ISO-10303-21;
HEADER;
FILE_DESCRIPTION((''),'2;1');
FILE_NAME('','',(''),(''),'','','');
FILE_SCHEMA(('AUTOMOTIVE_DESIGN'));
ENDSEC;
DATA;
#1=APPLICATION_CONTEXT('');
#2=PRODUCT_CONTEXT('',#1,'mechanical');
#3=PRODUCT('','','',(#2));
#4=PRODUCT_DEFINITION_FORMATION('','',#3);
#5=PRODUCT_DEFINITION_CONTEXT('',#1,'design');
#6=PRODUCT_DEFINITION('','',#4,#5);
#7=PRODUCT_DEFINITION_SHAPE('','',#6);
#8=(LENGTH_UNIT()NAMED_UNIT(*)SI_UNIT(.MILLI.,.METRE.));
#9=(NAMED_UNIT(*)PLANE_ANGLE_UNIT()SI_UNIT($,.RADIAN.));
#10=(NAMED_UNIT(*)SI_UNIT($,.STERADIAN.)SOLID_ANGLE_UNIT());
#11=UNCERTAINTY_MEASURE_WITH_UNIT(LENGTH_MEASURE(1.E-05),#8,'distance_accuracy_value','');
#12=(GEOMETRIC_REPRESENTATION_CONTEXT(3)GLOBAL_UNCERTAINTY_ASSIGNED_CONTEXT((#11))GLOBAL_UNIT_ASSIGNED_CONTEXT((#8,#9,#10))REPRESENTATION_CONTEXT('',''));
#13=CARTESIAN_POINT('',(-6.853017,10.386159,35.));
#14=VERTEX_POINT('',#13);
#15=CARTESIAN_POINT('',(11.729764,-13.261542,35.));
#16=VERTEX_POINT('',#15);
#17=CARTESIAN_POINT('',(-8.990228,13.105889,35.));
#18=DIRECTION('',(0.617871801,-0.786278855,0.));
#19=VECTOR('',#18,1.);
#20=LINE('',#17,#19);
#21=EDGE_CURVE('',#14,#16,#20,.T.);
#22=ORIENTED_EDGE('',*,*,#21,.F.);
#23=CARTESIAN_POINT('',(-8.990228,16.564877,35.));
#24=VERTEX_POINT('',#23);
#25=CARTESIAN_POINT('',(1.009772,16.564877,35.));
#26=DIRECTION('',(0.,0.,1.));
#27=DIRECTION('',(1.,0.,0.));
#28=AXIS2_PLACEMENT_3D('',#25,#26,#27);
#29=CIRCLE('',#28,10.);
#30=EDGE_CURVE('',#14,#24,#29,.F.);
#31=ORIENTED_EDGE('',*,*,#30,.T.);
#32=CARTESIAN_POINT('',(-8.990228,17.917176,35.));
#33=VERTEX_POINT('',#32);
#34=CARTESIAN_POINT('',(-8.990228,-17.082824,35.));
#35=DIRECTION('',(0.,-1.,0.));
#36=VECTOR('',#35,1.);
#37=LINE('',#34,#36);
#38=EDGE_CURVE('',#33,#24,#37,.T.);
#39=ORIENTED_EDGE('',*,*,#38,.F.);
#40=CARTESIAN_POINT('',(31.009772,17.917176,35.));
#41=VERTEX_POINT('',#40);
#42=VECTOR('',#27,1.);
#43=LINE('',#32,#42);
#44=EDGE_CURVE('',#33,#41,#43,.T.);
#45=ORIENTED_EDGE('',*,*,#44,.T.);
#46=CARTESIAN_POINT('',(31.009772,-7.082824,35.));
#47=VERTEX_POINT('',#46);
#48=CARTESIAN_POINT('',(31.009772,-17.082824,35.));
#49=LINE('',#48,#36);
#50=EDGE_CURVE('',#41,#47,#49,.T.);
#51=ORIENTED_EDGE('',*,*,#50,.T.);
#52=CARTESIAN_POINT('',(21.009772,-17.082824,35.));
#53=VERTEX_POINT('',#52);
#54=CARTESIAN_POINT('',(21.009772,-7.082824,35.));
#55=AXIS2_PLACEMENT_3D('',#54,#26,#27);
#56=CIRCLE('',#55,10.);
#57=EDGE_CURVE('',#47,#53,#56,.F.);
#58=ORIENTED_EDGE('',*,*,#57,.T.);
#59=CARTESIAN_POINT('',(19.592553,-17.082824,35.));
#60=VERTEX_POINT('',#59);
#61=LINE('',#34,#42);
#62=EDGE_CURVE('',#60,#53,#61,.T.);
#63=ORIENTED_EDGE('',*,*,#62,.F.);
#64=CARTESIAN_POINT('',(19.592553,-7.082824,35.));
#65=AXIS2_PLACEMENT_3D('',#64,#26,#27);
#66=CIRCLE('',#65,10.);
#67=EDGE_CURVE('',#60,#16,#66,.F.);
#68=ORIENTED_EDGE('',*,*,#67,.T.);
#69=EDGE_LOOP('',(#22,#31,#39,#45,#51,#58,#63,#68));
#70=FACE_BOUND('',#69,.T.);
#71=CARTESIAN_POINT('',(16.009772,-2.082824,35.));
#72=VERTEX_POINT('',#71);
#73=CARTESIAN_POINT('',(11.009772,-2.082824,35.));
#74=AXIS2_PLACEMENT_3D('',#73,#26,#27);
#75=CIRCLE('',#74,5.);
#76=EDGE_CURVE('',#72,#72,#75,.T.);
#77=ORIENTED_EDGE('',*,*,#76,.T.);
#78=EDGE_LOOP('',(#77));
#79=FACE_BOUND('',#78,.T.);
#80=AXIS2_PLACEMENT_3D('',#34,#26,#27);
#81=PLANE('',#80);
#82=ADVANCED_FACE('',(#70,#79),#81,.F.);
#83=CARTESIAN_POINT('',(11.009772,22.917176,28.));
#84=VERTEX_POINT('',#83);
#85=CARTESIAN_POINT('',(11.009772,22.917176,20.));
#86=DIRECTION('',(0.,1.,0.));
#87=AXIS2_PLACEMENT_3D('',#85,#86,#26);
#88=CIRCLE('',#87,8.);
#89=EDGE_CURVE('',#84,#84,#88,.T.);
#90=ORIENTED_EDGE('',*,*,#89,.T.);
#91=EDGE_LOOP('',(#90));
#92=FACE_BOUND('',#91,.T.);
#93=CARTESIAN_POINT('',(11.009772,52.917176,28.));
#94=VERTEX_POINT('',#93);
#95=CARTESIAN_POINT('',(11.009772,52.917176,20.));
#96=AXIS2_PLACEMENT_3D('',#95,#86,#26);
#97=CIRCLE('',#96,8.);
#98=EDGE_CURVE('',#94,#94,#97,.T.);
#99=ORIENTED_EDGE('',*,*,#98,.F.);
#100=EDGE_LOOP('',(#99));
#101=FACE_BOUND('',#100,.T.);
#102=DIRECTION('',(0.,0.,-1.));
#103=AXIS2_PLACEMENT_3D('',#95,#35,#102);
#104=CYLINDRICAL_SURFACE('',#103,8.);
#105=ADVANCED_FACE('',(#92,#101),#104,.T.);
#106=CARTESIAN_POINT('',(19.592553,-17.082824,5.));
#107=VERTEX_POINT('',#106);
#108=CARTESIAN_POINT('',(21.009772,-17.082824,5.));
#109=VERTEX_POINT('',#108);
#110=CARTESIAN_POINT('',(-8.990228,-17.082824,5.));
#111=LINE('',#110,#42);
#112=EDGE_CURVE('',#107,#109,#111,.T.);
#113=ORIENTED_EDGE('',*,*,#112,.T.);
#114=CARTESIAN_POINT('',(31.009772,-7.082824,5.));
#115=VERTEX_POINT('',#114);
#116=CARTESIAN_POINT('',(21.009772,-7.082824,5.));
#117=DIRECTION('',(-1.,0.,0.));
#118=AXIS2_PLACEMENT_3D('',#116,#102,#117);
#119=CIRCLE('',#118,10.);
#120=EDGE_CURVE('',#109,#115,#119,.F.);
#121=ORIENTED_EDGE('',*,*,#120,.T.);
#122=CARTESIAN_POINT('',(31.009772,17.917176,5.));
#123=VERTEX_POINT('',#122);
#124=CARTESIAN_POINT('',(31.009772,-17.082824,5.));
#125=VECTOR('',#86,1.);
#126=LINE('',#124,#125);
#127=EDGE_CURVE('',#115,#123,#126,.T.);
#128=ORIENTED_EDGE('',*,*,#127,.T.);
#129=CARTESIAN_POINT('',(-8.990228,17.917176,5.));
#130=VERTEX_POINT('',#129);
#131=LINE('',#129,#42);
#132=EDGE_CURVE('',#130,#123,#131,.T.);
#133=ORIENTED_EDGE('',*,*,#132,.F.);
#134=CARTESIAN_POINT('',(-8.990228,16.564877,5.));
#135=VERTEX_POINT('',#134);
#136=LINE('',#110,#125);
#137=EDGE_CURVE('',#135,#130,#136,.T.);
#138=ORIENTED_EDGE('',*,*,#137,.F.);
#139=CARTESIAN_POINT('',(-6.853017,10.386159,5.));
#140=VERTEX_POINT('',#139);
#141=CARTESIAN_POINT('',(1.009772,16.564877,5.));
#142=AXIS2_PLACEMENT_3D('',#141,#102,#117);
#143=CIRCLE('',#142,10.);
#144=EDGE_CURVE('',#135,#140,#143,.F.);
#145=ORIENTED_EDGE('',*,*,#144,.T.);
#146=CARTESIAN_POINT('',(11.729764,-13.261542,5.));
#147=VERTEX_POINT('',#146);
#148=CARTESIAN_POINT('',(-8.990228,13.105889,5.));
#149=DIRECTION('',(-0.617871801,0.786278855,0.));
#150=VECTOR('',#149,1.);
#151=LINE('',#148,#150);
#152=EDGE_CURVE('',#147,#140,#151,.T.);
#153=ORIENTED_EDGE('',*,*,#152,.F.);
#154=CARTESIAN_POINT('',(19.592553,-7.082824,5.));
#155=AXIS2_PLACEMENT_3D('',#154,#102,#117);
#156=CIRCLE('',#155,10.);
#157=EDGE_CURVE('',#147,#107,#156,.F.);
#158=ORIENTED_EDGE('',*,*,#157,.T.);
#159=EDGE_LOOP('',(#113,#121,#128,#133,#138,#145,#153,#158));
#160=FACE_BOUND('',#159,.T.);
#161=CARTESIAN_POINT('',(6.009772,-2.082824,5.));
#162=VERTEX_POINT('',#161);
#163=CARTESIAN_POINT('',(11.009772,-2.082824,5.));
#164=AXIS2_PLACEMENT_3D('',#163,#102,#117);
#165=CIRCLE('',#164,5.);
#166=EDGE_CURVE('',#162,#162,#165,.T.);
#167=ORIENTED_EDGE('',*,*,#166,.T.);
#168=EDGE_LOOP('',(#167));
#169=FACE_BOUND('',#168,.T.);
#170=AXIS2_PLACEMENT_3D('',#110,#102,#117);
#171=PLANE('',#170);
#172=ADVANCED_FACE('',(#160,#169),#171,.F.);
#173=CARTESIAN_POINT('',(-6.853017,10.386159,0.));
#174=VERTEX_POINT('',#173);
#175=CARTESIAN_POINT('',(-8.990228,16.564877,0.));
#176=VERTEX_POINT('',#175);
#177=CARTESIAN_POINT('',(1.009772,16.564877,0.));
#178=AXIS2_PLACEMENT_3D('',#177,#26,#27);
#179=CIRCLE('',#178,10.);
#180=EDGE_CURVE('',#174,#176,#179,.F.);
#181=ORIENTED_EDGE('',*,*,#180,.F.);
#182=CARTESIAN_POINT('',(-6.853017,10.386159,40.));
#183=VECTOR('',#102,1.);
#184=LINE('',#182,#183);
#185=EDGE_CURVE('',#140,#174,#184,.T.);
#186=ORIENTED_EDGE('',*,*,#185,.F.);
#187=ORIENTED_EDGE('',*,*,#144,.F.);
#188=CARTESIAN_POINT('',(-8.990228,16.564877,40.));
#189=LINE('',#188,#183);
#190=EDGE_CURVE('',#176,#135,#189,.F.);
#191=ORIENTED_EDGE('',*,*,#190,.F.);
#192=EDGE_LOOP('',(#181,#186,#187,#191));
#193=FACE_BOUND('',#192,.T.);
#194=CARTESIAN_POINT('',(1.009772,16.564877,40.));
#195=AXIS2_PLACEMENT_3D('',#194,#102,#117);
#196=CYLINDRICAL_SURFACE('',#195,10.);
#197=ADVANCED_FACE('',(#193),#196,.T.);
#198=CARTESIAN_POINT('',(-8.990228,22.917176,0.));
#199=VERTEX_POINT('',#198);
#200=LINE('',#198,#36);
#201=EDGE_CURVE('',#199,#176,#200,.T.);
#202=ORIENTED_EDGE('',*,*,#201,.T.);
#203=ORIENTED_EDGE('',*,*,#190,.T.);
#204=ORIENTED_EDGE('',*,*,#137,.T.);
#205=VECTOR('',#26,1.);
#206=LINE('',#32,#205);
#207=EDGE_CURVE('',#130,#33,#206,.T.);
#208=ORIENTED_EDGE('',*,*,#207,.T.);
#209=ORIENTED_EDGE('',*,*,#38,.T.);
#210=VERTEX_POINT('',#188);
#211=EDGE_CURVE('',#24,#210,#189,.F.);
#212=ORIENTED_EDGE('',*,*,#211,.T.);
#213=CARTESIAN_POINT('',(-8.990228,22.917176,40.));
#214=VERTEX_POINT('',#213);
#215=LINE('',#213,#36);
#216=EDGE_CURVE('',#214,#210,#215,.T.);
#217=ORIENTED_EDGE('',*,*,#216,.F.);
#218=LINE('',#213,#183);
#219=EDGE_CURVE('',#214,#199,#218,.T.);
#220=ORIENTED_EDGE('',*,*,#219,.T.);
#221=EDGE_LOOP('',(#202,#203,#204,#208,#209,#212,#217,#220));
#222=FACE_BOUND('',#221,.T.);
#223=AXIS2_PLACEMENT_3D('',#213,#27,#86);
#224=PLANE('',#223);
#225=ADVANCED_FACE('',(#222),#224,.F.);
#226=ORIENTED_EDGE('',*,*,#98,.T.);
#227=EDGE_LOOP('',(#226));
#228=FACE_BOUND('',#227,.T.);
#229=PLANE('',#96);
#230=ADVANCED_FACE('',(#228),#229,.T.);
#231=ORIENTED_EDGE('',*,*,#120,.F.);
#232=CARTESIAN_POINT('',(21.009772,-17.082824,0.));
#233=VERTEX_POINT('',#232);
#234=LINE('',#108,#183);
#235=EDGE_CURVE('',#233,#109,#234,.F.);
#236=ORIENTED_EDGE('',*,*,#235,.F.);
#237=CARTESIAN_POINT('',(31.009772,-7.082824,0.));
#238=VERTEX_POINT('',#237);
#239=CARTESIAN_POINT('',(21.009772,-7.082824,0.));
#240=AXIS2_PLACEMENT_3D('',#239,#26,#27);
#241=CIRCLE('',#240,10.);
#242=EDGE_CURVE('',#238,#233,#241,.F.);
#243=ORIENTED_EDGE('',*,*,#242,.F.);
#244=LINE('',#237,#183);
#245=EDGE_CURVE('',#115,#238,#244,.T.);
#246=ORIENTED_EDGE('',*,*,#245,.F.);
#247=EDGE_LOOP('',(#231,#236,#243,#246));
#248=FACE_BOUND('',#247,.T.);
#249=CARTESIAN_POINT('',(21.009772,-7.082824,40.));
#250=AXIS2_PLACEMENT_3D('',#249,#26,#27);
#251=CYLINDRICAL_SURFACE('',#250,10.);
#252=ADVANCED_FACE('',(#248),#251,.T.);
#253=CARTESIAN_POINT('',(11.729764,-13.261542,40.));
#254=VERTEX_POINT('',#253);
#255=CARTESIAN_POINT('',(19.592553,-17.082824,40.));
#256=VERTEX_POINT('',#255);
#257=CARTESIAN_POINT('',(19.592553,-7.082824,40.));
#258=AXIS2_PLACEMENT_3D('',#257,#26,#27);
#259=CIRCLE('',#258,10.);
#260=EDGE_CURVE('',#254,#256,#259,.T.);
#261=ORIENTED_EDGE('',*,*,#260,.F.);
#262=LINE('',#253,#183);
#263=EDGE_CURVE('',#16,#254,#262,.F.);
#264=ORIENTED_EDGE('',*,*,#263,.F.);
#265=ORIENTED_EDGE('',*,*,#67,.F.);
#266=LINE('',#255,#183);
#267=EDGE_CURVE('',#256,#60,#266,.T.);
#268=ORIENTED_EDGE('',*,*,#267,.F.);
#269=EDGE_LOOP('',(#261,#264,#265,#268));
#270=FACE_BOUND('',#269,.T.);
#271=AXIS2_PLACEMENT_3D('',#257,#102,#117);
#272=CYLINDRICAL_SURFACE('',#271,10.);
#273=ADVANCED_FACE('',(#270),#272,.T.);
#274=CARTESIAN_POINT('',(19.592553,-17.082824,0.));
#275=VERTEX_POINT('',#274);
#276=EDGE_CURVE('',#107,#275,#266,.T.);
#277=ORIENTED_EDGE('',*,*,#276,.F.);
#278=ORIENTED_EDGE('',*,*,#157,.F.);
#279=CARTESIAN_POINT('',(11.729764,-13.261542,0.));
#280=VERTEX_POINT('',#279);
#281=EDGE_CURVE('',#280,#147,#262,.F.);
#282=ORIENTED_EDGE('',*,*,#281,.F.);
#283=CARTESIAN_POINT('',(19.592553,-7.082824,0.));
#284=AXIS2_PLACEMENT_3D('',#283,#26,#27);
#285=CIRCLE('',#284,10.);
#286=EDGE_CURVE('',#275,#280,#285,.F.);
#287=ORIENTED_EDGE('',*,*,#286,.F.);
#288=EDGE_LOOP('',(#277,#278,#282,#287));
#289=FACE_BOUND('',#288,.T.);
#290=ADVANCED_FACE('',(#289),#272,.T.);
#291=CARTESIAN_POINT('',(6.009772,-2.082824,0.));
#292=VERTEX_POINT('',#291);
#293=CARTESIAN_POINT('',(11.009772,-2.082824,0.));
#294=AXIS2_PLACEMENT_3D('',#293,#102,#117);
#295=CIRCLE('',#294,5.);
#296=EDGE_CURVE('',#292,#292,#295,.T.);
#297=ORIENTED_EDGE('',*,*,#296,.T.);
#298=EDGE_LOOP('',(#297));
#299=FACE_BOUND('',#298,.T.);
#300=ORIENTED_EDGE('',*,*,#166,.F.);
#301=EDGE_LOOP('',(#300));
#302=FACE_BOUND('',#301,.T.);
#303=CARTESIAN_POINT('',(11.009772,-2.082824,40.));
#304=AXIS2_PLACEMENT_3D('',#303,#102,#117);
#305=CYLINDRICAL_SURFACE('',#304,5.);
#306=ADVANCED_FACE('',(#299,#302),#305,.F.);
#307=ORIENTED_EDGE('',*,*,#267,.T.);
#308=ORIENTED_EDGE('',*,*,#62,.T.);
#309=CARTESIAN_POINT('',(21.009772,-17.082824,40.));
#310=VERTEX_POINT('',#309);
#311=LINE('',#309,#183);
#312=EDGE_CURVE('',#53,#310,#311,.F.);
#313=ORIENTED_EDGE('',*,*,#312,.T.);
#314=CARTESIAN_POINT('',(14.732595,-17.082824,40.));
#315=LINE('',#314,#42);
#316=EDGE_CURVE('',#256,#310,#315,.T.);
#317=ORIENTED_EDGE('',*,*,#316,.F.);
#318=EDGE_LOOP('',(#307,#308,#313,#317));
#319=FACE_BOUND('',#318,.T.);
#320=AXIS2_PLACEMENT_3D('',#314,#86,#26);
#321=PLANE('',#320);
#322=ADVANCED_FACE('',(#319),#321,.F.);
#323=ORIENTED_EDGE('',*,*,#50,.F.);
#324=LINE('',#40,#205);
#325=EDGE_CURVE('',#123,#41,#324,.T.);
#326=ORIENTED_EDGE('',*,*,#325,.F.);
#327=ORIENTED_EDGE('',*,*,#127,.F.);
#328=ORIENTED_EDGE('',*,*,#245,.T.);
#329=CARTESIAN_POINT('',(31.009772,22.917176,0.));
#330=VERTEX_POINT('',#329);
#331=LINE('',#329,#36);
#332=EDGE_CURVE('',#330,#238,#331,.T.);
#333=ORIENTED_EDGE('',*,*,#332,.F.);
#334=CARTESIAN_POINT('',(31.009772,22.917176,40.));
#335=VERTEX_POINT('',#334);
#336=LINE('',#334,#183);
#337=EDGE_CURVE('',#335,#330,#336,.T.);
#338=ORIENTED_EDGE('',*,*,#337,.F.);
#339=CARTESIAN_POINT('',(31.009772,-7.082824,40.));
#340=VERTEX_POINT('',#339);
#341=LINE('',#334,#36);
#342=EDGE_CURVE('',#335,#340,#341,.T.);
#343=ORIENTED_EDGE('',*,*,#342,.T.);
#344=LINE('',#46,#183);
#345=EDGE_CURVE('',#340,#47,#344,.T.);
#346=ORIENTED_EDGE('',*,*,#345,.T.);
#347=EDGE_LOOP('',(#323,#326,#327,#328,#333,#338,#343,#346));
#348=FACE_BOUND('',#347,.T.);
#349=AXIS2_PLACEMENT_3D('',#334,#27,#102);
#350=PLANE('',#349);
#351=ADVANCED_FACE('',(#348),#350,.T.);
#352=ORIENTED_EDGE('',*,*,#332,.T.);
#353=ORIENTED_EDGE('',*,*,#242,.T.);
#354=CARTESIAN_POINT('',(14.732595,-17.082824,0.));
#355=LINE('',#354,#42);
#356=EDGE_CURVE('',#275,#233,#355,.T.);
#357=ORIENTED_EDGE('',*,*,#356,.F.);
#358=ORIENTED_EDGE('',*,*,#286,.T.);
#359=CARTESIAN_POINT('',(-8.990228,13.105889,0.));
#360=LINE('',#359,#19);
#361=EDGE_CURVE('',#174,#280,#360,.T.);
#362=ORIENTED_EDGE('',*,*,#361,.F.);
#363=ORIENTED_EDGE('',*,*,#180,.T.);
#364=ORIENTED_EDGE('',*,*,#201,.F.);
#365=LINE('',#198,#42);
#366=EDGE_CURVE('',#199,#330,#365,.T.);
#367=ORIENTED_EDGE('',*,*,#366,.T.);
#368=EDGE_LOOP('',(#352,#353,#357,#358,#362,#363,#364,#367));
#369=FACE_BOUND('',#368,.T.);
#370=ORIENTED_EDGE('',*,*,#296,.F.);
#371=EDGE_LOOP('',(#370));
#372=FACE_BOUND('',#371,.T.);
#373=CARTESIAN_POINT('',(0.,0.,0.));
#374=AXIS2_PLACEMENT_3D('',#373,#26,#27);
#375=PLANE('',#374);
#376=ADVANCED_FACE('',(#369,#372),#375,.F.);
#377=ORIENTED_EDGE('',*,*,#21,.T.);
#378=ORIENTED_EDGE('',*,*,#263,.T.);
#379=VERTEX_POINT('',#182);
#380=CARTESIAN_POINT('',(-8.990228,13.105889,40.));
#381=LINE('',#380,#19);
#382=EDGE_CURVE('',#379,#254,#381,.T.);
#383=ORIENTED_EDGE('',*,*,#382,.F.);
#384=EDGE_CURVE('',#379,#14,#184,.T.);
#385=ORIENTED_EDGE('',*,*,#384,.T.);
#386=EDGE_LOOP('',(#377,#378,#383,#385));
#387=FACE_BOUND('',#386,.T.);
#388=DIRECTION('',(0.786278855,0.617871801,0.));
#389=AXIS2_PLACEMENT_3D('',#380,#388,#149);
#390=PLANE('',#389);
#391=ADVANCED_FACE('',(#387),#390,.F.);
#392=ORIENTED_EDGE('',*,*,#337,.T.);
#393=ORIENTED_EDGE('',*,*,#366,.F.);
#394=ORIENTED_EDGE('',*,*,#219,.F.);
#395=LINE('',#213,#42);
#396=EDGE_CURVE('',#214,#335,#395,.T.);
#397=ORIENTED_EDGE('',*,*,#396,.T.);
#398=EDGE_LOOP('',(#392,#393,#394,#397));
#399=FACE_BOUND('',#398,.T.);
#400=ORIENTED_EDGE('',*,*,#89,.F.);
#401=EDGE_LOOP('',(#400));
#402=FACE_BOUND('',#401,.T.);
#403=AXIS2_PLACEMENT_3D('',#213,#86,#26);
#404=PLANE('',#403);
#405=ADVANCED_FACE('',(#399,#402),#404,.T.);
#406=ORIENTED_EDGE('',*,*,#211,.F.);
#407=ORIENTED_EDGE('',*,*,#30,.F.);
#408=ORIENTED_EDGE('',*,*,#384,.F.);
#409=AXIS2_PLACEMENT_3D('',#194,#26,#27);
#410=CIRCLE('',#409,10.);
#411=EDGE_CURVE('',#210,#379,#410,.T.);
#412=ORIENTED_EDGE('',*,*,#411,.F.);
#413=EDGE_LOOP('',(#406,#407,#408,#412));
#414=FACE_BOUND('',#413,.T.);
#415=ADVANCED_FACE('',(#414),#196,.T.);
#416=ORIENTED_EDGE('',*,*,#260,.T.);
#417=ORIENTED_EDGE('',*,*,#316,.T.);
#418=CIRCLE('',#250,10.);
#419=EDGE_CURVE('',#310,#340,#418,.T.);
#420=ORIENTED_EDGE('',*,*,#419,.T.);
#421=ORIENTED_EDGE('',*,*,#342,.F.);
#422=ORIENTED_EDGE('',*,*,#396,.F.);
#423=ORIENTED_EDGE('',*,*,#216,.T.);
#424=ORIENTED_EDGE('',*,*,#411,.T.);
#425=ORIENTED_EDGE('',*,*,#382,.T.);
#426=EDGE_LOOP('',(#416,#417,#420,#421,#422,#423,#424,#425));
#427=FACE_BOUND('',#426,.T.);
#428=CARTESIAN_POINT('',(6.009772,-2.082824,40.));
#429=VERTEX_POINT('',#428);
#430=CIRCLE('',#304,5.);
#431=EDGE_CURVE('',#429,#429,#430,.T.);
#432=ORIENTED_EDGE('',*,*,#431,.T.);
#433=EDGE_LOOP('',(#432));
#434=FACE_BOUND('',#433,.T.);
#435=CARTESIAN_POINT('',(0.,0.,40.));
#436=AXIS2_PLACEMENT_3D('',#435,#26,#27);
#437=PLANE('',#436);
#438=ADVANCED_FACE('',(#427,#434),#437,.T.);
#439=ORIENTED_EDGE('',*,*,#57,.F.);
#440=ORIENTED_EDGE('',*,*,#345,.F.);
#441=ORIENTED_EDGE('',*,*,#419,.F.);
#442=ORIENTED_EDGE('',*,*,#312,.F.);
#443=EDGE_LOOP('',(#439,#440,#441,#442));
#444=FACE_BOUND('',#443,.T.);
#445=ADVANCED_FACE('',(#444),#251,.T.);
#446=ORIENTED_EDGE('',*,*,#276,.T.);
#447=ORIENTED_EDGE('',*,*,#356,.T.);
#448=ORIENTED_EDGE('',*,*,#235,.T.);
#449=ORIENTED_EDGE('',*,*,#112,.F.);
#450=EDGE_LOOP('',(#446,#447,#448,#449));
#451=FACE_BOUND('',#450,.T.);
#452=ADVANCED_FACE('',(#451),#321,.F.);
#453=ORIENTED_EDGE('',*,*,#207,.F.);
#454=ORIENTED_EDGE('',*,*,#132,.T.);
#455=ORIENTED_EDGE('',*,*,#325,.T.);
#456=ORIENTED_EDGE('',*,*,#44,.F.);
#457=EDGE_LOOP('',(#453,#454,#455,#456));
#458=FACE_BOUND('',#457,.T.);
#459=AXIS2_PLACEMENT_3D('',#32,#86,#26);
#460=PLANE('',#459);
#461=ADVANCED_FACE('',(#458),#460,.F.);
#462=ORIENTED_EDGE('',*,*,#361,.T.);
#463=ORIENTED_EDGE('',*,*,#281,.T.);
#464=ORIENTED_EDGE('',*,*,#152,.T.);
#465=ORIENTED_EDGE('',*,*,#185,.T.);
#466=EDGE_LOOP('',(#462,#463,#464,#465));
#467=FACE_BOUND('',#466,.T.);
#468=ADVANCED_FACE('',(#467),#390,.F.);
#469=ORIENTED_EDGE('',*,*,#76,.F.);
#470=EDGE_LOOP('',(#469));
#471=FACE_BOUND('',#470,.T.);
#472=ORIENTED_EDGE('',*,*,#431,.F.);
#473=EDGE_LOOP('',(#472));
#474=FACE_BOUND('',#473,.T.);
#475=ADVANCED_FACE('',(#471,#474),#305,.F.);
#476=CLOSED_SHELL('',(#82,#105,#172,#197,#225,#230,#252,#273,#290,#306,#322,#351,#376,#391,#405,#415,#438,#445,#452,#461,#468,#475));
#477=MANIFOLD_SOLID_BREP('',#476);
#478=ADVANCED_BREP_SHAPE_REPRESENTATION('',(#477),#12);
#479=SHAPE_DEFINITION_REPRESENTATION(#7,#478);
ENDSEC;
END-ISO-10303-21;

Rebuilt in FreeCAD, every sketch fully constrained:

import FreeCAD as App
import Part
import Sketcher
from FreeCAD import Vector
Q = App.Units.Quantity


def edges_at(feature, points):
    """Names of the edges that pass closest to the given points."""
    edges = feature.Shape.Edges
    near = lambda p: min(range(len(edges)), key=lambda i: edges[i].distToShape(Part.Vertex(*p))[0])
    return sorted({f"Edge{near(p) + 1}" for p in points})


def add_polygon(sketch, points):
    """Adds a closed chain of lines whose ends are joined by coincident constraints."""
    first, n = sketch.GeometryCount, len(points)
    for a, b in zip(points, points[1:] + points[:1]):
        sketch.addGeometry(Part.LineSegment(App.Vector(*a, 0), App.Vector(*b, 0)), False)
    for i in range(n):
        sketch.addConstraint(Sketcher.Constraint("Coincident", first + i, 2, first + (i + 1) % n, 1))

doc = App.newDocument("Part")
body = doc.addObject("PartDesign::Body", "Body")

sketch1 = body.newObject("Sketcher::SketchObject", "Sketch")
sketch1.AttachmentSupport = (doc.getObject("XY_Plane"), [""])
sketch1.MapMode = "FlatFace"
add_polygon(sketch1, [(31, 23), (-9, 23), (-9, 13), (15, -17), (31, -17)])
sketch1.addConstraint(Sketcher.Constraint("Horizontal", 0))
sketch1.addConstraint(Sketcher.Constraint("Vertical", 1))
sketch1.addConstraint(Sketcher.Constraint("Horizontal", 3))
sketch1.addConstraint(Sketcher.Constraint("Vertical", 4))
sketch1.addConstraint(Sketcher.Constraint("Equal", 0, 4))
sketch1.addConstraint(Sketcher.Constraint("DistanceX", 0, 2, 0, 1, Q("40 mm")))
sketch1.addConstraint(Sketcher.Constraint("Distance", 2, Q("38.39441 mm")))
sketch1.addConstraint(Sketcher.Constraint("DistanceX", 3, 1, 3, 2, Q("16.277177 mm")))
sketch1.addConstraint(Sketcher.Constraint("DistanceX", 0, 2, -1, 1, Q("8.990228 mm")))
sketch1.addConstraint(Sketcher.Constraint("DistanceY", -1, 1, 1, 2, Q("13.105889 mm")))
pad1 = body.newObject("PartDesign::Pad", "Pad")
pad1.Profile = sketch1
pad1.Length = 40

sketch2 = body.newObject("Sketcher::SketchObject", "Sketch001")
sketch2.AttachmentSupport = (doc.getObject("YZ_Plane"), [""])
sketch2.MapMode = "FlatFace"
sketch2.AttachmentOffset = App.Placement(Vector(0, 0, 31.009772), App.Rotation())
add_polygon(sketch2, [(18, 35), (-17, 35), (-17, 5), (18, 5)])
sketch2.addConstraint(Sketcher.Constraint("Horizontal", 0))
sketch2.addConstraint(Sketcher.Constraint("Vertical", 1))
sketch2.addConstraint(Sketcher.Constraint("Horizontal", 2))
sketch2.addConstraint(Sketcher.Constraint("Vertical", 3))
sketch2.addConstraint(Sketcher.Constraint("DistanceX", 0, 2, 0, 1, Q("35 mm")))
sketch2.addConstraint(Sketcher.Constraint("DistanceY", 1, 2, 1, 1, Q("30 mm")))
sketch2.addConstraint(Sketcher.Constraint("DistanceY", -1, 1, 0, 2, Q("35 mm")))
sketch2.addConstraint(Sketcher.Constraint("DistanceX", 0, 2, -1, 1, Q("17.082824 mm")))
pocket1 = body.newObject("PartDesign::Pocket", "Pocket")
pocket1.Profile = sketch2
pocket1.Length = 40

sketch3 = body.newObject("Sketcher::SketchObject", "Sketch002")
sketch3.AttachmentSupport = (doc.getObject("XY_Plane"), [""])
sketch3.MapMode = "FlatFace"
sketch3.addGeometry(Part.Circle(Vector(11, -2, 0), Vector(0, 0, 1), 5), False)
sketch3.addConstraint(Sketcher.Constraint("Diameter", 0, Q("10 mm")))
sketch3.addConstraint(Sketcher.Constraint("DistanceX", -1, 1, 0, 3, Q("11.009772 mm")))
sketch3.addConstraint(Sketcher.Constraint("DistanceY", 0, 3, -1, 1, Q("2.082824 mm")))
pocket2 = body.newObject("PartDesign::Pocket", "Pocket001")
pocket2.Profile = sketch3
pocket2.Length = 40
pocket2.Reversed = True
doc.recompute()

fillet = body.newObject("PartDesign::Fillet", "Fillet")
fillet.Base = (pocket2, edges_at(pocket2, [
    (31.01, -17.083, 2.5),
    (14.733, -17.083, 2.5),
    (-8.99, 13.106, 2.5),
    (31.01, -17.083, 37.5),
    (14.733, -17.083, 37.5),
    (-8.99, 13.106, 37.5),
]))
fillet.Radius = 10

sketch4 = body.newObject("Sketcher::SketchObject", "Sketch003")
sketch4.AttachmentSupport = (doc.getObject("XZ_Plane"), [""])
sketch4.MapMode = "FlatFace"
sketch4.AttachmentOffset = App.Placement(Vector(0, 0, -22.917176), App.Rotation())
sketch4.addGeometry(Part.Circle(Vector(11, 20, 0), Vector(0, 0, 1), 8), False)
sketch4.addConstraint(Sketcher.Constraint("Diameter", 0, Q("16 mm")))
sketch4.addConstraint(Sketcher.Constraint("DistanceY", -1, 1, 0, 3, Q("20 mm")))
sketch4.addConstraint(Sketcher.Constraint("DistanceX", -1, 1, 0, 3, Q("11.009772 mm")))
pad2 = body.newObject("PartDesign::Pad", "Pad001")
pad2.Profile = sketch4
pad2.Length = 30
pad2.Reversed = True

doc.recompute()
